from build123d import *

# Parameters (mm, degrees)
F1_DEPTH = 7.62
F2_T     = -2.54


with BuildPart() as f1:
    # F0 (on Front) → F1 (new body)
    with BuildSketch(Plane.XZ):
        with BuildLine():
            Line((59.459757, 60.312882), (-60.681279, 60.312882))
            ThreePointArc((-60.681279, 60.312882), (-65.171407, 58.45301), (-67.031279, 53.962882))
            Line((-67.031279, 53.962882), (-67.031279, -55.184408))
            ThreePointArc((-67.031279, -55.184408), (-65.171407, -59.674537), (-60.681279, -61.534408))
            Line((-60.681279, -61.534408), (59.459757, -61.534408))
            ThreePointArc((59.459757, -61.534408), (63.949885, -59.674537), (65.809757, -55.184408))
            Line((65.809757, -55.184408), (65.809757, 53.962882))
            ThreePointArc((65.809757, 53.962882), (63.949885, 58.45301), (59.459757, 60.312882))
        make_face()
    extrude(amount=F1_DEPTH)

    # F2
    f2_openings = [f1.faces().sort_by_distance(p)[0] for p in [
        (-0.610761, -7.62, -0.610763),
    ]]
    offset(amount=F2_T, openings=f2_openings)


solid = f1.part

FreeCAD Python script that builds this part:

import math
import FreeCAD as App
import Part
import Sketcher
from FreeCAD import Vector
Q = App.Units.Quantity


def faces_at(feature, points):
    """Names of the faces that lie closest to the given points."""
    faces = feature.Shape.Faces
    near = lambda p: min(range(len(faces)), key=lambda i: faces[i].distToShape(Part.Vertex(*p))[0])
    return sorted({f"Face{near(p) + 1}" for p in points})

doc = App.newDocument("Part")
body = doc.addObject("PartDesign::Body", "Body")

# Sketch on XZ plane
sketch1 = body.newObject("Sketcher::SketchObject", "Sketch")
sketch1.AttachmentSupport = (doc.getObject("XZ_Plane"), [""])
sketch1.MapMode = "FlatFace"
sketch1.addGeometry([
    Part.LineSegment(Vector(59, 60, 0), Vector(-61, 60, 0)),  # 0
    Part.ArcOfCircle(Part.Circle(Vector(-61, 54, 0), Vector(0, 0, 1), 6), math.radians(90), math.radians(180)),  # 1
    Part.LineSegment(Vector(-67, 54, 0), Vector(-67, -55, 0)),  # 2
    Part.ArcOfCircle(Part.Circle(Vector(-61, -55, 0), Vector(0, 0, 1), 6), math.radians(180), math.radians(270)),  # 3
    Part.LineSegment(Vector(-61, -62, 0), Vector(59, -62, 0)),  # 4
    Part.ArcOfCircle(Part.Circle(Vector(59, -55, 0), Vector(0, 0, 1), 6), math.radians(-90), math.radians(0)),  # 5
    Part.LineSegment(Vector(66, -55, 0), Vector(66, 54, 0)),  # 6
    Part.ArcOfCircle(Part.Circle(Vector(59, 54, 0), Vector(0, 0, 1), 6), math.radians(0), math.radians(90)),  # 7
], False)
sketch1.addConstraint([
    Sketcher.Constraint("Tangent", 0, 2, 1, 1),
    Sketcher.Constraint("Tangent", 1, 2, 2, 1),
    Sketcher.Constraint("Tangent", 2, 2, 3, 1),
    Sketcher.Constraint("Tangent", 3, 2, 4, 1),
    Sketcher.Constraint("Tangent", 4, 2, 5, 1),
    Sketcher.Constraint("Tangent", 5, 2, 6, 1),
    Sketcher.Constraint("Tangent", 6, 2, 7, 1),
    Sketcher.Constraint("Tangent", 7, 2, 0, 1),
    Sketcher.Constraint("Horizontal", 0),
    Sketcher.Constraint("Vertical", 2),
    Sketcher.Constraint("Horizontal", 4),
    Sketcher.Constraint("Vertical", 6),
    Sketcher.Constraint("Equal", 1, 3),
    Sketcher.Constraint("Equal", 3, 5),
    Sketcher.Constraint("Equal", 5, 7),
    Sketcher.Constraint("Radius", 1, Q("0.25 in")),
    Sketcher.Constraint("DistanceY", 2, 2, 2, 1, Q("109.14729 mm")),
    Sketcher.Constraint("DistanceX", 0, 2, 0, 1, Q("120.141036 mm")),
    Sketcher.Constraint("DistanceX", 1, 3, -1, 1, Q("60.681279 mm")),
    Sketcher.Constraint("DistanceY", -1, 1, 1, 3, Q("53.962882 mm")),
])
pad1 = body.newObject("PartDesign::Pad", "Pad")
pad1.Profile = sketch1
pad1.Length = Q("0.3 in")
doc.recompute()

thickness = body.newObject("PartDesign::Thickness", "Thickness")
thickness.Base = (pad1, faces_at(pad1, [(-0.611, -7.62, -0.611)]))
thickness.Value = Q("0.1 in")
thickness.Reversed = True
thickness.Join = "Arc"

doc.recompute()
